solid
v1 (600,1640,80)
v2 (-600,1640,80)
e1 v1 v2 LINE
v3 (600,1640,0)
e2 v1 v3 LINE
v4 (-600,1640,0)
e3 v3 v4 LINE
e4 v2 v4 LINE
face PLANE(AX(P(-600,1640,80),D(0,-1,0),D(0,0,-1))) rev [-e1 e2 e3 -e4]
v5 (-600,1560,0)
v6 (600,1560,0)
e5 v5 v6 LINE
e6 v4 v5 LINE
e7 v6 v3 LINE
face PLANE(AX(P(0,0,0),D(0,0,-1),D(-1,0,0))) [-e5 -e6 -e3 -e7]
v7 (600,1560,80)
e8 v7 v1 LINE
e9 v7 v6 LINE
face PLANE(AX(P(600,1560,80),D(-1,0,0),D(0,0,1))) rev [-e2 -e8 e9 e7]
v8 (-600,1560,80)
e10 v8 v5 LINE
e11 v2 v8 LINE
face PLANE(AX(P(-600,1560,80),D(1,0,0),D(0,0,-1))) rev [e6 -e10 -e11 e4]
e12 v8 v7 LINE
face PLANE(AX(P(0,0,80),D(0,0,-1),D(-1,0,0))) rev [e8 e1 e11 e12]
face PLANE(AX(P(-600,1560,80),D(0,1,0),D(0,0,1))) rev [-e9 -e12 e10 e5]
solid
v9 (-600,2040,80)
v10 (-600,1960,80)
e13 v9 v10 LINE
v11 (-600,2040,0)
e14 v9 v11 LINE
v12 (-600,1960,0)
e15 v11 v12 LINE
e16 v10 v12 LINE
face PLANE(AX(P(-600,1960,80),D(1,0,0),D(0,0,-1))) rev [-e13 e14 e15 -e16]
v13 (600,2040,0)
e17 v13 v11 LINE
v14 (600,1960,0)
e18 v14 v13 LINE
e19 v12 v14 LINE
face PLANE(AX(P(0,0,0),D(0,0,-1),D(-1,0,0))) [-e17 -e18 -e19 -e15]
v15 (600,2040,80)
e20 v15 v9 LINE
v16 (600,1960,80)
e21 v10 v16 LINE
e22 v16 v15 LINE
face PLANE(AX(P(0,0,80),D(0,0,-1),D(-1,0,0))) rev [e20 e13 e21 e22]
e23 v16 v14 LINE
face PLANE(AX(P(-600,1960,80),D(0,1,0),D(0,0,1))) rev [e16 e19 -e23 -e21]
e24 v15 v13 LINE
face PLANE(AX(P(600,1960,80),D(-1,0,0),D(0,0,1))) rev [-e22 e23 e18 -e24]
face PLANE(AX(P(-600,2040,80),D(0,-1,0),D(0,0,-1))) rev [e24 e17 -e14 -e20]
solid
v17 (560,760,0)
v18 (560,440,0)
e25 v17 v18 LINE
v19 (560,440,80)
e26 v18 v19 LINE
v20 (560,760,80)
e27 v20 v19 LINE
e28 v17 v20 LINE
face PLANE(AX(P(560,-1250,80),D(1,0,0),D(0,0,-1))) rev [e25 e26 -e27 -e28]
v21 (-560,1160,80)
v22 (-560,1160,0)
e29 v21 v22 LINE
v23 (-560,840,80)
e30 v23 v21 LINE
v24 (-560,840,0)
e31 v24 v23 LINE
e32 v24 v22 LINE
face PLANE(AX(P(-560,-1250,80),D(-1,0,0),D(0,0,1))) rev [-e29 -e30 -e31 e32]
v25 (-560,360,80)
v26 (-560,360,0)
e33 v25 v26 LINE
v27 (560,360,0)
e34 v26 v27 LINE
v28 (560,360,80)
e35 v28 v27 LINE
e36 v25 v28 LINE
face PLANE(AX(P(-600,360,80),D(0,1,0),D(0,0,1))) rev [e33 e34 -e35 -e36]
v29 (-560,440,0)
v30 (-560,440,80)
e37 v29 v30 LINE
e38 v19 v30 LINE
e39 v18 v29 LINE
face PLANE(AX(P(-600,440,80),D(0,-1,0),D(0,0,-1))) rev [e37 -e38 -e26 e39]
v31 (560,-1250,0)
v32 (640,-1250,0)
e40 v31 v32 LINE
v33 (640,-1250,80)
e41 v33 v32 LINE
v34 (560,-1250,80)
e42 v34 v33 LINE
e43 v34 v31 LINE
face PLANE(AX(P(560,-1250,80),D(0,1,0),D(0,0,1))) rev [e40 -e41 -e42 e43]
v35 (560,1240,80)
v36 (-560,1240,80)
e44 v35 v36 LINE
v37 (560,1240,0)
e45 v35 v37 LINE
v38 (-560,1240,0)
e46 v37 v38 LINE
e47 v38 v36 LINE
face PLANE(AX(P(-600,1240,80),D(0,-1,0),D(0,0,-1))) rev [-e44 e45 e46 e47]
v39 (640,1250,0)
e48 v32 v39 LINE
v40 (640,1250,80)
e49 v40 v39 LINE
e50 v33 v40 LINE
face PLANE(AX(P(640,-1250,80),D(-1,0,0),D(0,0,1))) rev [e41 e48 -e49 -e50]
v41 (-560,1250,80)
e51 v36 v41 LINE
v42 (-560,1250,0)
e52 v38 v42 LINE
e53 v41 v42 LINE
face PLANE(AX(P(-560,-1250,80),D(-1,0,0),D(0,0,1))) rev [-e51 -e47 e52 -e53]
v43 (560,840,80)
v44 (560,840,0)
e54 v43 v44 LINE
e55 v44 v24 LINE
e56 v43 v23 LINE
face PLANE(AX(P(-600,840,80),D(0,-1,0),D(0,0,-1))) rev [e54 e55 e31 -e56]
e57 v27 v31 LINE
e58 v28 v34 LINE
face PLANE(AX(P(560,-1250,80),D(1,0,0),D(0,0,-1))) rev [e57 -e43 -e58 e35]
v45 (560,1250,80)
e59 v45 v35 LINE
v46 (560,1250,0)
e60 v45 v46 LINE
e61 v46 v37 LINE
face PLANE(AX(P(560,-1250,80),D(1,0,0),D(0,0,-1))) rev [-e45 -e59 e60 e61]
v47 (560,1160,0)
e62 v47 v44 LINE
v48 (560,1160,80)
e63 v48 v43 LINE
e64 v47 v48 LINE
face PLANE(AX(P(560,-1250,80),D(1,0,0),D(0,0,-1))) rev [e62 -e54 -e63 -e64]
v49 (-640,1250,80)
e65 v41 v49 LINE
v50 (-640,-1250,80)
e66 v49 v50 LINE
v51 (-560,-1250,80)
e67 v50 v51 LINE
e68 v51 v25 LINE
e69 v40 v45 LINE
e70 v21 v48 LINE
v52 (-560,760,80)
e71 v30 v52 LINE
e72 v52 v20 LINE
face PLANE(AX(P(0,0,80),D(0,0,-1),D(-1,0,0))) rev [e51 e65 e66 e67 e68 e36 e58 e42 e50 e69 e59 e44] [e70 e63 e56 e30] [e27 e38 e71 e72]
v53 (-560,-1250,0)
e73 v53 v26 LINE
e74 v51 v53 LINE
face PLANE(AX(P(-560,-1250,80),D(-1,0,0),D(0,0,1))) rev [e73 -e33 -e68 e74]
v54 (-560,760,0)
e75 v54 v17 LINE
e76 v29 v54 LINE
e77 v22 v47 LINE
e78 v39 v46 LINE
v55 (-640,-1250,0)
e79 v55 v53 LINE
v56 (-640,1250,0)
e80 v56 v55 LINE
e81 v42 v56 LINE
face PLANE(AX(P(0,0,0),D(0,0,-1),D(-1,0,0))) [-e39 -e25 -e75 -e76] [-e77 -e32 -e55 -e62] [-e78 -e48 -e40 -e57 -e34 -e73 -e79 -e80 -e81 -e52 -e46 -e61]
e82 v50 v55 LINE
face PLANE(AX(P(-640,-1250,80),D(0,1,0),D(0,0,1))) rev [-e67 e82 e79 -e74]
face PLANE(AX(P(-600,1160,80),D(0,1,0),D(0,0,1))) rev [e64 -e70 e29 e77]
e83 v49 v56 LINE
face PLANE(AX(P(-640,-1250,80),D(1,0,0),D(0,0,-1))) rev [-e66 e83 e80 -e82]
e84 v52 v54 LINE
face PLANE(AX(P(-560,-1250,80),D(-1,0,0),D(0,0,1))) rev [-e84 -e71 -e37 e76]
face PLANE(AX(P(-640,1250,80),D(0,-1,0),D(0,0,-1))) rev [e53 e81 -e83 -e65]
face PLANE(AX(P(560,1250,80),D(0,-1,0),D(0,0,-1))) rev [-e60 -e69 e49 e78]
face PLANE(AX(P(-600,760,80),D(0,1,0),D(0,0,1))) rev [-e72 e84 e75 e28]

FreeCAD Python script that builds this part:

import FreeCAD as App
import Part
import Sketcher

doc = App.newDocument("Part")
body = doc.addObject("PartDesign::Body", "Body")

sketch1 = body.newObject("Sketcher::SketchObject", "Sketch")
sketch1.AttachmentSupport = (doc.getObject("XY_Plane"), [""])
sketch1.MapMode = "FlatFace"
sketch1.addGeometry(Part.LineSegment(App.Vector(-640, 1250, 0), App.Vector(-640, -1250, 0)), False)
sketch1.addGeometry(Part.LineSegment(App.Vector(-640, -1250, 0), App.Vector(-560, -1250, 0)), False)
sketch1.addGeometry(Part.LineSegment(App.Vector(-560, -1250, 0), App.Vector(-560, 1250, 0)), False)
sketch1.addGeometry(Part.LineSegment(App.Vector(-560, 1250, 0), App.Vector(-640, 1250, 0)), False)
sketch1.addConstraint(Sketcher.Constraint("Coincident", 0, 2, 1, 1))
sketch1.addConstraint(Sketcher.Constraint("Coincident", 1, 2, 2, 1))
sketch1.addConstraint(Sketcher.Constraint("Coincident", 2, 2, 3, 1))
sketch1.addConstraint(Sketcher.Constraint("Coincident", 3, 2, 0, 1))
sketch1.addConstraint(Sketcher.Constraint("Vertical", 0))
sketch1.addConstraint(Sketcher.Constraint("Horizontal", 1))
sketch1.addConstraint(Sketcher.Constraint("Vertical", 2))
sketch1.addConstraint(Sketcher.Constraint("Horizontal", 3))
sketch1.addConstraint(Sketcher.Constraint("DistanceX", 1, 1, 1, 2, 80.0))
sketch1.addConstraint(Sketcher.Constraint("DistanceY", 0, 2, 0, 1, 2500.0))
sketch1.addConstraint(Sketcher.Constraint("DistanceX", 0, 2, -1, 1, 640.0))
sketch1.addConstraint(Sketcher.Constraint("DistanceY", 0, 2, -1, 1, 1250.0))
pad1 = body.newObject("PartDesign::Pad", "Pad")
pad1.Profile = sketch1
pad1.Length = 80
body2 = doc.addObject("PartDesign::Body", "Body001")

sketch2 = body2.newObject("Sketcher::SketchObject", "Sketch001")
sketch2.AttachmentSupport = (doc.getObject("XY_Plane001"), [""])
sketch2.MapMode = "FlatFace"
sketch2.addGeometry(Part.LineSegment(App.Vector(560, 1250, 0), App.Vector(560, -1250, 0)), False)
sketch2.addGeometry(Part.LineSegment(App.Vector(560, -1250, 0), App.Vector(640, -1250, 0)), False)
sketch2.addGeometry(Part.LineSegment(App.Vector(640, -1250, 0), App.Vector(640, 1250, 0)), False)
sketch2.addGeometry(Part.LineSegment(App.Vector(640, 1250, 0), App.Vector(560, 1250, 0)), False)
sketch2.addConstraint(Sketcher.Constraint("Coincident", 0, 2, 1, 1))
sketch2.addConstraint(Sketcher.Constraint("Coincident", 1, 2, 2, 1))
sketch2.addConstraint(Sketcher.Constraint("Coincident", 2, 2, 3, 1))
sketch2.addConstraint(Sketcher.Constraint("Coincident", 3, 2, 0, 1))
sketch2.addConstraint(Sketcher.Constraint("Vertical", 0))
sketch2.addConstraint(Sketcher.Constraint("Horizontal", 1))
sketch2.addConstraint(Sketcher.Constraint("Vertical", 2))
sketch2.addConstraint(Sketcher.Constraint("Horizontal", 3))
sketch2.addConstraint(Sketcher.Constraint("DistanceX", 1, 1, 1, 2, 80.0))
sketch2.addConstraint(Sketcher.Constraint("DistanceY", 0, 2, 0, 1, 2500.0))
sketch2.addConstraint(Sketcher.Constraint("DistanceX", -1, 1, 0, 2, 560.0))
sketch2.addConstraint(Sketcher.Constraint("DistanceY", 0, 2, -1, 1, 1250.0))
pad2 = body2.newObject("PartDesign::Pad", "Pad001")
pad2.Profile = sketch2
pad2.Length = 80
body.AllowCompound = True
doc.recompute()

boolean = body.newObject("PartDesign::Boolean", "Boolean")
boolean.Type = "Fuse"
boolean.addObjects([body2])

sketch3 = body.newObject("Sketcher::SketchObject", "Sketch002")
sketch3.AttachmentSupport = (doc.getObject("XY_Plane"), [""])
sketch3.MapMode = "FlatFace"
sketch3.addGeometry(Part.LineSegment(App.Vector(-600, 440, 0), App.Vector(-600, 360, 0)), False)
sketch3.addGeometry(Part.LineSegment(App.Vector(-600, 360, 0), App.Vector(600, 360, 0)), False)
sketch3.addGeometry(Part.LineSegment(App.Vector(600, 360, 0), App.Vector(600, 440, 0)), False)
sketch3.addGeometry(Part.LineSegment(App.Vector(600, 440, 0), App.Vector(-600, 440, 0)), False)
sketch3.addConstraint(Sketcher.Constraint("Coincident", 0, 2, 1, 1))
sketch3.addConstraint(Sketcher.Constraint("Coincident", 1, 2, 2, 1))
sketch3.addConstraint(Sketcher.Constraint("Coincident", 2, 2, 3, 1))
sketch3.addConstraint(Sketcher.Constraint("Coincident", 3, 2, 0, 1))
sketch3.addConstraint(Sketcher.Constraint("Vertical", 0))
sketch3.addConstraint(Sketcher.Constraint("Horizontal", 1))
sketch3.addConstraint(Sketcher.Constraint("Vertical", 2))
sketch3.addConstraint(Sketcher.Constraint("Horizontal", 3))
sketch3.addConstraint(Sketcher.Constraint("DistanceX", 1, 1, 1, 2, 1200.0))
sketch3.addConstraint(Sketcher.Constraint("DistanceY", 0, 2, 0, 1, 80.0))
sketch3.addConstraint(Sketcher.Constraint("DistanceX", 0, 2, -1, 1, 600.0))
sketch3.addConstraint(Sketcher.Constraint("DistanceY", -1, 1, 0, 2, 360.0))
pad3 = body.newObject("PartDesign::Pad", "Pad002")
pad3.Profile = sketch3
pad3.Length = 80

sketch4 = body.newObject("Sketcher::SketchObject", "Sketch003")
sketch4.AttachmentSupport = (doc.getObject("XY_Plane"), [""])
sketch4.MapMode = "FlatFace"
sketch4.addGeometry(Part.LineSegment(App.Vector(-600, 840, 0), App.Vector(-600, 760, 0)), False)
sketch4.addGeometry(Part.LineSegment(App.Vector(-600, 760, 0), App.Vector(600, 760, 0)), False)
sketch4.addGeometry(Part.LineSegment(App.Vector(600, 760, 0), App.Vector(600, 840, 0)), False)
sketch4.addGeometry(Part.LineSegment(App.Vector(600, 840, 0), App.Vector(-600, 840, 0)), False)
sketch4.addConstraint(Sketcher.Constraint("Coincident", 0, 2, 1, 1))
sketch4.addConstraint(Sketcher.Constraint("Coincident", 1, 2, 2, 1))
sketch4.addConstraint(Sketcher.Constraint("Coincident", 2, 2, 3, 1))
sketch4.addConstraint(Sketcher.Constraint("Coincident", 3, 2, 0, 1))
sketch4.addConstraint(Sketcher.Constraint("Vertical", 0))
sketch4.addConstraint(Sketcher.Constraint("Horizontal", 1))
sketch4.addConstraint(Sketcher.Constraint("Vertical", 2))
sketch4.addConstraint(Sketcher.Constraint("Horizontal", 3))
sketch4.addConstraint(Sketcher.Constraint("DistanceX", 1, 1, 1, 2, 1200.0))
sketch4.addConstraint(Sketcher.Constraint("DistanceY", 0, 2, 0, 1, 80.0))
sketch4.addConstraint(Sketcher.Constraint("DistanceX", 0, 2, -1, 1, 600.0))
sketch4.addConstraint(Sketcher.Constraint("DistanceY", -1, 1, 0, 2, 760.0))
pad4 = body.newObject("PartDesign::Pad", "Pad003")
pad4.Profile = sketch4
pad4.Length = 80

sketch5 = body.newObject("Sketcher::SketchObject", "Sketch004")
sketch5.AttachmentSupport = (doc.getObject("XY_Plane"), [""])
sketch5.MapMode = "FlatFace"
sketch5.addGeometry(Part.LineSegment(App.Vector(-600, 1240, 0), App.Vector(-600, 1160, 0)), False)
sketch5.addGeometry(Part.LineSegment(App.Vector(-600, 1160, 0), App.Vector(600, 1160, 0)), False)
sketch5.addGeometry(Part.LineSegment(App.Vector(600, 1160, 0), App.Vector(600, 1240, 0)), False)
sketch5.addGeometry(Part.LineSegment(App.Vector(600, 1240, 0), App.Vector(-600, 1240, 0)), False)
sketch5.addConstraint(Sketcher.Constraint("Coincident", 0, 2, 1, 1))
sketch5.addConstraint(Sketcher.Constraint("Coincident", 1, 2, 2, 1))
sketch5.addConstraint(Sketcher.Constraint("Coincident", 2, 2, 3, 1))
sketch5.addConstraint(Sketcher.Constraint("Coincident", 3, 2, 0, 1))
sketch5.addConstraint(Sketcher.Constraint("Vertical", 0))
sketch5.addConstraint(Sketcher.Constraint("Horizontal", 1))
sketch5.addConstraint(Sketcher.Constraint("Vertical", 2))
sketch5.addConstraint(Sketcher.Constraint("Horizontal", 3))
sketch5.addConstraint(Sketcher.Constraint("DistanceX", 1, 1, 1, 2, 1200.0))
sketch5.addConstraint(Sketcher.Constraint("DistanceY", 0, 2, 0, 1, 80.0))
sketch5.addConstraint(Sketcher.Constraint("DistanceX", 0, 2, -1, 1, 600.0))
sketch5.addConstraint(Sketcher.Constraint("DistanceY", -1, 1, 0, 2, 1160.0))
pad5 = body.newObject("PartDesign::Pad", "Pad004")
pad5.Profile = sketch5
pad5.Length = 80
body3 = doc.addObject("PartDesign::Body", "Body002")

sketch6 = body3.newObject("Sketcher::SketchObject", "Sketch005")
sketch6.AttachmentSupport = (doc.getObject("XY_Plane002"), [""])
sketch6.MapMode = "FlatFace"
sketch6.addGeometry(Part.LineSegment(App.Vector(-600, 1640, 0), App.Vector(-600, 1560, 0)), False)
sketch6.addGeometry(Part.LineSegment(App.Vector(-600, 1560, 0), App.Vector(600, 1560, 0)), False)
sketch6.addGeometry(Part.LineSegment(App.Vector(600, 1560, 0), App.Vector(600, 1640, 0)), False)
sketch6.addGeometry(Part.LineSegment(App.Vector(600, 1640, 0), App.Vector(-600, 1640, 0)), False)
sketch6.addConstraint(Sketcher.Constraint("Coincident", 0, 2, 1, 1))
sketch6.addConstraint(Sketcher.Constraint("Coincident", 1, 2, 2, 1))
sketch6.addConstraint(Sketcher.Constraint("Coincident", 2, 2, 3, 1))
sketch6.addConstraint(Sketcher.Constraint("Coincident", 3, 2, 0, 1))
sketch6.addConstraint(Sketcher.Constraint("Vertical", 0))
sketch6.addConstraint(Sketcher.Constraint("Horizontal", 1))
sketch6.addConstraint(Sketcher.Constraint("Vertical", 2))
sketch6.addConstraint(Sketcher.Constraint("Horizontal", 3))
sketch6.addConstraint(Sketcher.Constraint("DistanceX", 1, 1, 1, 2, 1200.0))
sketch6.addConstraint(Sketcher.Constraint("DistanceY", 0, 2, 0, 1, 80.0))
sketch6.addConstraint(Sketcher.Constraint("DistanceX", 0, 2, -1, 1, 600.0))
sketch6.addConstraint(Sketcher.Constraint("DistanceY", -1, 1, 0, 2, 1560.0))
pad6 = body3.newObject("PartDesign::Pad", "Pad005")
pad6.Profile = sketch6
pad6.Length = 80
body4 = doc.addObject("PartDesign::Body", "Body003")

sketch7 = body4.newObject("Sketcher::SketchObject", "Sketch006")
sketch7.AttachmentSupport = (doc.getObject("XY_Plane003"), [""])
sketch7.MapMode = "FlatFace"
sketch7.addGeometry(Part.LineSegment(App.Vector(-600, 2040, 0), App.Vector(-600, 1960, 0)), False)
sketch7.addGeometry(Part.LineSegment(App.Vector(-600, 1960, 0), App.Vector(600, 1960, 0)), False)
sketch7.addGeometry(Part.LineSegment(App.Vector(600, 1960, 0), App.Vector(600, 2040, 0)), False)
sketch7.addGeometry(Part.LineSegment(App.Vector(600, 2040, 0), App.Vector(-600, 2040, 0)), False)
sketch7.addConstraint(Sketcher.Constraint("Coincident", 0, 2, 1, 1))
sketch7.addConstraint(Sketcher.Constraint("Coincident", 1, 2, 2, 1))
sketch7.addConstraint(Sketcher.Constraint("Coincident", 2, 2, 3, 1))
sketch7.addConstraint(Sketcher.Constraint("Coincident", 3, 2, 0, 1))
sketch7.addConstraint(Sketcher.Constraint("Vertical", 0))
sketch7.addConstraint(Sketcher.Constraint("Horizontal", 1))
sketch7.addConstraint(Sketcher.Constraint("Vertical", 2))
sketch7.addConstraint(Sketcher.Constraint("Horizontal", 3))
sketch7.addConstraint(Sketcher.Constraint("DistanceX", 1, 1, 1, 2, 1200.0))
sketch7.addConstraint(Sketcher.Constraint("DistanceY", 0, 2, 0, 1, 80.0))
sketch7.addConstraint(Sketcher.Constraint("DistanceX", 0, 2, -1, 1, 600.0))
sketch7.addConstraint(Sketcher.Constraint("DistanceY", -1, 1, 0, 2, 1960.0))
pad7 = body4.newObject("PartDesign::Pad", "Pad006")
pad7.Profile = sketch7
pad7.Length = 80

doc.recompute()
